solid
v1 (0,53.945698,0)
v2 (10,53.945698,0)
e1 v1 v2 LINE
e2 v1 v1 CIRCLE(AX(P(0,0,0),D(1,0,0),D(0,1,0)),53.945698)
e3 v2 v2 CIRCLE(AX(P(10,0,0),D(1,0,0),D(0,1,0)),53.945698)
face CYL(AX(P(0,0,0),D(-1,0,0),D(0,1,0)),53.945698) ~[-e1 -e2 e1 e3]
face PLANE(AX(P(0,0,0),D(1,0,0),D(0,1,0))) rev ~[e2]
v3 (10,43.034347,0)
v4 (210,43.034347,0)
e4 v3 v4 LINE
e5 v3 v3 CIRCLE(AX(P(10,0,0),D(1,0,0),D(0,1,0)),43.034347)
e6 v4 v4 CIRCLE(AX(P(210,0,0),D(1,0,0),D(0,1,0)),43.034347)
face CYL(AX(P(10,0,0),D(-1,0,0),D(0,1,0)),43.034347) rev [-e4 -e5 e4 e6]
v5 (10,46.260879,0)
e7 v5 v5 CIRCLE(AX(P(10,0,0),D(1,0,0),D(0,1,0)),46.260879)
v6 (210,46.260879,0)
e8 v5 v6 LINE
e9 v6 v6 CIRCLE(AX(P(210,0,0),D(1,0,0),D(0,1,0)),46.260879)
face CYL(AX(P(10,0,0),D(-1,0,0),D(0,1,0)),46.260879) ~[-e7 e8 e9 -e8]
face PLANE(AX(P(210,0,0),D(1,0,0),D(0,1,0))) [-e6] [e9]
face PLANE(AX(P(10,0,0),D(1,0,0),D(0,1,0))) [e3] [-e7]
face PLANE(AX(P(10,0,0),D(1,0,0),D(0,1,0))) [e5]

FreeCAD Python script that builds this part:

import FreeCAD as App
import Part
import Sketcher
from FreeCAD import Vector

doc = App.newDocument("Part")
body = doc.addObject("PartDesign::Body", "Body")

sketch1 = body.newObject("Sketcher::SketchObject", "Sketch")
sketch1.AttachmentSupport = (doc.getObject("YZ_Plane"), [""])
sketch1.MapMode = "FlatFace"
sketch1.addGeometry(Part.Circle(Vector(0, 0, 0), Vector(0, 0, 1), 54), False)
sketch1.addConstraint(Sketcher.Constraint("Coincident", 0, 3, -1, 1))
sketch1.addConstraint(Sketcher.Constraint("Diameter", 0, 107.891396))
pad1 = body.newObject("PartDesign::Pad", "Pad")
pad1.Profile = sketch1
pad1.Length = 10

sketch2 = body.newObject("Sketcher::SketchObject", "Sketch001")
sketch2.AttachmentSupport = (doc.getObject("YZ_Plane"), [""])
sketch2.MapMode = "FlatFace"
sketch2.AttachmentOffset = App.Placement(Vector(0, 0, 10), App.Rotation())
sketch2.addGeometry(Part.Circle(Vector(0, 0, 0), Vector(0, 0, 1), 46), False)
sketch2.addGeometry(Part.Circle(Vector(0, 0, 0), Vector(0, 0, 1), 43), False)
sketch2.addConstraint(Sketcher.Constraint("Coincident", 0, 3, -1, 1))
sketch2.addConstraint(Sketcher.Constraint("Coincident", 1, 3, -1, 1))
sketch2.addConstraint(Sketcher.Constraint("Diameter", 0, 92.521758))
sketch2.addConstraint(Sketcher.Constraint("Diameter", 1, 86.068694))
pad2 = body.newObject("PartDesign::Pad", "Pad001")
pad2.Profile = sketch2
pad2.Length = 200

doc.recompute()
